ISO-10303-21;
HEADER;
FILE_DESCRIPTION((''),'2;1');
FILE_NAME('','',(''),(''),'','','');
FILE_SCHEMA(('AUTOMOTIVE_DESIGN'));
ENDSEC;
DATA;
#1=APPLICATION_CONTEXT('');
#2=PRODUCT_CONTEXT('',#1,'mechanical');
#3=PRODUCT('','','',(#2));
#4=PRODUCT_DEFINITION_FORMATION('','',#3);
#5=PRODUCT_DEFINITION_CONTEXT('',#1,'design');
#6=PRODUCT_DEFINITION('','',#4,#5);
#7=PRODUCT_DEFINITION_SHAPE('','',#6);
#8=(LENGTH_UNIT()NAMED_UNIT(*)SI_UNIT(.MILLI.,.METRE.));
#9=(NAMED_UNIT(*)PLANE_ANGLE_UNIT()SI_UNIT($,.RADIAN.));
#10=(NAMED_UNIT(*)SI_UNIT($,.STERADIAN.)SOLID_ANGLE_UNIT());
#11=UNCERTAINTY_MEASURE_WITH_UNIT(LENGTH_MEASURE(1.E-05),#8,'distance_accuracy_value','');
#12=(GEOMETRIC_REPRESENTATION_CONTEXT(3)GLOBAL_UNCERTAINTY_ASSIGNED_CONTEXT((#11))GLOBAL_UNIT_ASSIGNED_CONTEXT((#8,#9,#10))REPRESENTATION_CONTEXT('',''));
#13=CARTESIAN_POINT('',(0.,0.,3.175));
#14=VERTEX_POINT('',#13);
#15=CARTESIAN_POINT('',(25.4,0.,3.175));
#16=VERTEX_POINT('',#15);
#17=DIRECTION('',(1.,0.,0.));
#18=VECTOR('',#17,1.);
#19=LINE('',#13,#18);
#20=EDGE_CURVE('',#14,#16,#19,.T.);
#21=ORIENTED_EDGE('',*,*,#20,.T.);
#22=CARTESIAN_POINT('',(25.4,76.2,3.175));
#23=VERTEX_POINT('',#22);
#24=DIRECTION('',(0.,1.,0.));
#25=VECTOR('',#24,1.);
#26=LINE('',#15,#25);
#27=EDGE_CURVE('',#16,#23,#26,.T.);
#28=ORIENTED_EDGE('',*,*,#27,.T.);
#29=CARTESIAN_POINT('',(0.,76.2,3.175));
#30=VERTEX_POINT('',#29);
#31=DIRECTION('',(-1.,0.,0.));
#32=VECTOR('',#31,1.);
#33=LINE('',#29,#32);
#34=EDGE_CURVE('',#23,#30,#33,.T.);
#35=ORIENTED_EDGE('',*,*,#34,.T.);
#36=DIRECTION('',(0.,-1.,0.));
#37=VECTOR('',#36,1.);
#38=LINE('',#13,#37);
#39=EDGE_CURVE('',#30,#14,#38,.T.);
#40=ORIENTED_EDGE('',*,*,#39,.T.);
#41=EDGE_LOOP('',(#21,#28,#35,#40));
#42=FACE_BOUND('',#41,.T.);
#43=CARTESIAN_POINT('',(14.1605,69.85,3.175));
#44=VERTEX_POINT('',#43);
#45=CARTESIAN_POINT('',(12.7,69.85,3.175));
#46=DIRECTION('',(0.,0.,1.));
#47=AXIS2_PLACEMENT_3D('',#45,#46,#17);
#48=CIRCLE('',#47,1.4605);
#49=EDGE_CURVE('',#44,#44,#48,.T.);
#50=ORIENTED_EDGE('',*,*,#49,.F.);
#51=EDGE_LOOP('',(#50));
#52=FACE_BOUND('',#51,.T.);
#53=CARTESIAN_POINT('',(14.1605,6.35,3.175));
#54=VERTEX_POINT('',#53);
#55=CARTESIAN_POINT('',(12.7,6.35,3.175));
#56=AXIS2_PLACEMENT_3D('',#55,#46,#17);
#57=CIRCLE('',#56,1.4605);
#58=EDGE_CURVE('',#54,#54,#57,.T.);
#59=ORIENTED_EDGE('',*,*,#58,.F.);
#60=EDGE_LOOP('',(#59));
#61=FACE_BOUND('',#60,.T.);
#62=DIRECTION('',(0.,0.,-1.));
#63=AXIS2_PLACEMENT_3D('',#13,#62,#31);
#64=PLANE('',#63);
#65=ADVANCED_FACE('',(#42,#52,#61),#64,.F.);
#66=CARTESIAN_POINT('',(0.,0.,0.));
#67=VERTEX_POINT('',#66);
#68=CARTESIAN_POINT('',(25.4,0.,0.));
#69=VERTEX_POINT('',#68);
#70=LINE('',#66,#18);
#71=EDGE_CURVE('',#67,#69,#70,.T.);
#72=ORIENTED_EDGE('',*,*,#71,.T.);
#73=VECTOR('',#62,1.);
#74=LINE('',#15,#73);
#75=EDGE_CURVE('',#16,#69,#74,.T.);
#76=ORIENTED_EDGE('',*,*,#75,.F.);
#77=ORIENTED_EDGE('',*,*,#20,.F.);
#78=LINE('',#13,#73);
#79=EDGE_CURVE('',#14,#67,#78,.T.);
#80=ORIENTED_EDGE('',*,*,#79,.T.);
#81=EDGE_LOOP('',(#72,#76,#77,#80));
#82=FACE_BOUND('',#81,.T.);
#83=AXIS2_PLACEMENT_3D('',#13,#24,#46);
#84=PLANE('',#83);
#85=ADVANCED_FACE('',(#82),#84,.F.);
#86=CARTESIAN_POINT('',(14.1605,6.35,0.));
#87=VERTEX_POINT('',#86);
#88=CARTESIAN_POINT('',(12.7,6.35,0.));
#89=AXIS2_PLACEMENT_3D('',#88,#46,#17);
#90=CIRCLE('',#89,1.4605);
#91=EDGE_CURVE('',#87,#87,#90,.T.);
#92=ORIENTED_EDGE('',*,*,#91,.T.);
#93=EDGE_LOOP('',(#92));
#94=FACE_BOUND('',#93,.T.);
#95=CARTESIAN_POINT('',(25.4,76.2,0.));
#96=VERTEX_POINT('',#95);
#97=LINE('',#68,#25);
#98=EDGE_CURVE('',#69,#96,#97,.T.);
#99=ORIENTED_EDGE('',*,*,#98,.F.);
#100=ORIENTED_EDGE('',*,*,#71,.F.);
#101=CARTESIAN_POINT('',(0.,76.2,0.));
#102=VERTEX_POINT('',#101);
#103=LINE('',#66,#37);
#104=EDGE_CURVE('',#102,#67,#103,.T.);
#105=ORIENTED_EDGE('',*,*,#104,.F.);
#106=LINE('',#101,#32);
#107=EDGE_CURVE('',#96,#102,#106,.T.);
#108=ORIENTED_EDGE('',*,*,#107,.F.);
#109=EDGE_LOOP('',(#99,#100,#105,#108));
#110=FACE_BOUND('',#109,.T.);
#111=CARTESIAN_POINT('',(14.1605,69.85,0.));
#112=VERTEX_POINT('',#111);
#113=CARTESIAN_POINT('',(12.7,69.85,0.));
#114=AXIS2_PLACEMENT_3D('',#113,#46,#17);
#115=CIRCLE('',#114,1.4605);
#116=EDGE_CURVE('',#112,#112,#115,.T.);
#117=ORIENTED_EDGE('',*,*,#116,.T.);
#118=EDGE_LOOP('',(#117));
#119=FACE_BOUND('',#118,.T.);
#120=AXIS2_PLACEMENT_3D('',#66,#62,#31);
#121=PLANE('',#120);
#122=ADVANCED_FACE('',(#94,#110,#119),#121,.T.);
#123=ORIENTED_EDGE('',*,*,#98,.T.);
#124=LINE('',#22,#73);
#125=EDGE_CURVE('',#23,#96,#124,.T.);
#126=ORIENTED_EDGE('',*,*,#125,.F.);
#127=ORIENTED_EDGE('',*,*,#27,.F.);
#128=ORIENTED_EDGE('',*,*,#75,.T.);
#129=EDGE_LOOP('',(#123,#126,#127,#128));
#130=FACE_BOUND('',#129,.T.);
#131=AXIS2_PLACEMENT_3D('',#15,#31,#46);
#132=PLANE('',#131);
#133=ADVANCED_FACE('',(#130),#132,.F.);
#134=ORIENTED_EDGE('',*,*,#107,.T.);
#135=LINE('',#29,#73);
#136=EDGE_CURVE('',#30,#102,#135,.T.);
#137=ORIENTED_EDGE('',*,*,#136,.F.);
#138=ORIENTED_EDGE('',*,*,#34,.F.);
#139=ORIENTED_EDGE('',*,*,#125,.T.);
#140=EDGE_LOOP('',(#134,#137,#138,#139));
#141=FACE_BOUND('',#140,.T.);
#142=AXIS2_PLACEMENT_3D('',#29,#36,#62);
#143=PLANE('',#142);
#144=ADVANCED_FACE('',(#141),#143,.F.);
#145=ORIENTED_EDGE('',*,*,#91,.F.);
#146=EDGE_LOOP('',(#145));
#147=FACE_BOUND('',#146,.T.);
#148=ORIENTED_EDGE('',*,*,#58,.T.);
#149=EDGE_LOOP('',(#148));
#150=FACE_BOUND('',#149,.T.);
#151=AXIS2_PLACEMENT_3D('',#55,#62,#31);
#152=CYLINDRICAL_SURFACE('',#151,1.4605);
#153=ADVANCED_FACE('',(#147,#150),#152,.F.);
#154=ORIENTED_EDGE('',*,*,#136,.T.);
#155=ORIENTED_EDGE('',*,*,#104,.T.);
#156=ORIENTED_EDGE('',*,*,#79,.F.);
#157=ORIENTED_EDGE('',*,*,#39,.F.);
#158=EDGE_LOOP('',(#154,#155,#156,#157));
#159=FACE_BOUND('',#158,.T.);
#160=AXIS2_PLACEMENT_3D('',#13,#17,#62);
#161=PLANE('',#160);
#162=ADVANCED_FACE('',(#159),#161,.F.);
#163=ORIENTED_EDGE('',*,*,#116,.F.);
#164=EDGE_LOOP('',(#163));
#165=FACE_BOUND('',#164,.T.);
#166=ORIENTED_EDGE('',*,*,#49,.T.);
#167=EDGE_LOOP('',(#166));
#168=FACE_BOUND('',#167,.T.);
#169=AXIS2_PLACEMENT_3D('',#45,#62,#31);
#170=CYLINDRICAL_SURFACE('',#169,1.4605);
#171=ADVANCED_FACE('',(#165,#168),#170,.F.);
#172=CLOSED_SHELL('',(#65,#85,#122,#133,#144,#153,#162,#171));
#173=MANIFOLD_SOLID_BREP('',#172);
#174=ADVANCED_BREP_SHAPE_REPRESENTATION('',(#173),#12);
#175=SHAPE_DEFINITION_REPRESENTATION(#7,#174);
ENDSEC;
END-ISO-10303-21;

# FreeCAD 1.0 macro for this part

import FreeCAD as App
import Part
import Sketcher
Q = App.Units.Quantity


def add_polygon(sketch, points):
    """Adds a closed chain of lines whose ends are joined by coincident constraints."""
    first, n = sketch.GeometryCount, len(points)
    for a, b in zip(points, points[1:] + points[:1]):
        sketch.addGeometry(Part.LineSegment(App.Vector(*a, 0), App.Vector(*b, 0)), False)
    for i in range(n):
        sketch.addConstraint(Sketcher.Constraint("Coincident", first + i, 2, first + (i + 1) % n, 1))

doc = App.newDocument("Part")
body = doc.addObject("PartDesign::Body", "Body")

# Sketch on XY plane
sketch1 = body.newObject("Sketcher::SketchObject", "Sketch")
sketch1.AttachmentSupport = (doc.getObject("XY_Plane"), [""])
sketch1.MapMode = "FlatFace"
add_polygon(sketch1, [(0, 76.2), (0, 0), (25.4, 0), (25.4, 76.2)])  # lines 0-3
sketch1.addGeometry(Part.Circle(App.Vector(12.7, 6.35, 0), App.Vector(0, 0, 1), 1.4605), False)  # 4
sketch1.addGeometry(Part.Circle(App.Vector(12.7, 69.85, 0), App.Vector(0, 0, 1), 1.4605), False)  # 5
sketch1.addConstraint([
    Sketcher.Constraint("Vertical", 0),
    Sketcher.Constraint("Horizontal", 1),
    Sketcher.Constraint("Vertical", 2),
    Sketcher.Constraint("Horizontal", 3),
    Sketcher.Constraint("Coincident", 0, 2, -1, 1),
    Sketcher.Constraint("Equal", 4, 5),
    Sketcher.Constraint("Vertical", 4, 3, 5, 3),
    Sketcher.Constraint("DistanceX", 1, 1, 1, 2, Q("1 in")),
    Sketcher.Constraint("DistanceY", 0, 2, 0, 1, Q("3 in")),
    Sketcher.Constraint("Diameter", 4, Q("0.115 in")),
    Sketcher.Constraint("DistanceX", -1, 1, 4, 3, Q("0.5 in")),
    Sketcher.Constraint("DistanceY", 4, 3, 5, 3, Q("2.5 in")),
    Sketcher.Constraint("DistanceY", -1, 1, 4, 3, Q("0.25 in")),
])
pad1 = body.newObject("PartDesign::Pad", "Pad")
pad1.Profile = sketch1
pad1.Length = Q("0.125 in")

doc.recompute()
